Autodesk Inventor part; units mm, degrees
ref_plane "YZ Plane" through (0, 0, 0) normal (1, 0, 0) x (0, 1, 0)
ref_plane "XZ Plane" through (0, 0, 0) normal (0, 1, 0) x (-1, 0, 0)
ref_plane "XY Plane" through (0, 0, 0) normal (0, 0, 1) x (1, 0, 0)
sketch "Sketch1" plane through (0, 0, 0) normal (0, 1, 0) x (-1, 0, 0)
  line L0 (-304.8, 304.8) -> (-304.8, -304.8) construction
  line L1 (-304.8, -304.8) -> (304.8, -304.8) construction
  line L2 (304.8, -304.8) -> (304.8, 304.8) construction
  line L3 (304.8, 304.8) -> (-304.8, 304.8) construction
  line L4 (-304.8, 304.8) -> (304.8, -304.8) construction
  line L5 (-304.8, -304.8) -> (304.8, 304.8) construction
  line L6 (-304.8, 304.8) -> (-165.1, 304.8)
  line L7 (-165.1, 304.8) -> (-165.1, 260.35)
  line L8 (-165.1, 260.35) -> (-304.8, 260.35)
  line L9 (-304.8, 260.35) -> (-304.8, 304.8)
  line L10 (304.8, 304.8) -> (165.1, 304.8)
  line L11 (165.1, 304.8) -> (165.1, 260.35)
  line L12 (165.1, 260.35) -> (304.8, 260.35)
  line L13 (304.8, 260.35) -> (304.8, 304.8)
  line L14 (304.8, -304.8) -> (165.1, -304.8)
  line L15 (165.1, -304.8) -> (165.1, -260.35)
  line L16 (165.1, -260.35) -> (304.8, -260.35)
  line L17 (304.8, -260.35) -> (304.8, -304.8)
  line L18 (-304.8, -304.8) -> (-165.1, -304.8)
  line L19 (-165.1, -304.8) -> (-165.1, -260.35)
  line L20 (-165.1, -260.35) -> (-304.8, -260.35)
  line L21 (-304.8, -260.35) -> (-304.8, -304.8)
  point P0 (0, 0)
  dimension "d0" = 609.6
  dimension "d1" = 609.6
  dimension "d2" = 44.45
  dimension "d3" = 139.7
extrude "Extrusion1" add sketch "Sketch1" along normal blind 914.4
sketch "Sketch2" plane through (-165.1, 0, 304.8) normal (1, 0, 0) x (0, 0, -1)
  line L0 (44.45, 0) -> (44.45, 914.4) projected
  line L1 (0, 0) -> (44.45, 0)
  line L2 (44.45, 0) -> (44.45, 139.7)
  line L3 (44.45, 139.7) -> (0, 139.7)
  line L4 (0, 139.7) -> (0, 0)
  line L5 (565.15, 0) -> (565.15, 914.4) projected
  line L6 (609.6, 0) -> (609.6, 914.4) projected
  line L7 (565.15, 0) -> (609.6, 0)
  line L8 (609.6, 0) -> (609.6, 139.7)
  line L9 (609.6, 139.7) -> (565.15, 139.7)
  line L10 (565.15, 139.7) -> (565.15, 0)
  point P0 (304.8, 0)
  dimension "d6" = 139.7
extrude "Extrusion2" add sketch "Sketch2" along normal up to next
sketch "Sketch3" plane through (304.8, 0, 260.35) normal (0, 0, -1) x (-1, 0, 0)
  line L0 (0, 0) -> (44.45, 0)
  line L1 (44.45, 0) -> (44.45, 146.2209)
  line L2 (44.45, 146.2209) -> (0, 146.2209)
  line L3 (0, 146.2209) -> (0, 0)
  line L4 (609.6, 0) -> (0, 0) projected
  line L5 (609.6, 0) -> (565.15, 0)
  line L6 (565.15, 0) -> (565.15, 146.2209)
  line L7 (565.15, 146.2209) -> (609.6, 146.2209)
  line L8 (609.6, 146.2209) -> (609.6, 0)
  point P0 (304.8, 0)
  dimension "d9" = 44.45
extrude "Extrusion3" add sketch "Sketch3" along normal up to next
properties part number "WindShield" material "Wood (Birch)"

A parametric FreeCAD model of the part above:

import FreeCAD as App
import Part
import Sketcher
from FreeCAD import Vector
Q = App.Units.Quantity

doc = App.newDocument("Part")
body = doc.addObject("PartDesign::Body", "Body")
body.AllowCompound = True

# Sketch on XZ plane
sketch1 = doc.addObject("Sketcher::SketchObject", "Sketch")
body.addObject(sketch1)
sketch1.AttachmentSupport = (doc.XZ_Plane, [""])
sketch1.MapMode = "FlatFace"
sketch1.addGeometry([
    Part.LineSegment(Vector(165, 305, 0), Vector(305, 305, 0)),  # 0
    Part.LineSegment(Vector(305, 305, 0), Vector(305, 260, 0)),  # 1
    Part.LineSegment(Vector(305, 260, 0), Vector(165, 260, 0)),  # 2
    Part.LineSegment(Vector(165, 260, 0), Vector(165, 305, 0)),  # 3
    Part.LineSegment(Vector(-305, 260, 0), Vector(-305, 305, 0)),  # 4
    Part.LineSegment(Vector(-305, 305, 0), Vector(-165, 305, 0)),  # 5
    Part.LineSegment(Vector(-165, 305, 0), Vector(-165, 260, 0)),  # 6
    Part.LineSegment(Vector(-165, 260, 0), Vector(-305, 260, 0)),  # 7
    Part.LineSegment(Vector(-165, -305, 0), Vector(-305, -305, 0)),  # 8
    Part.LineSegment(Vector(-305, -305, 0), Vector(-305, -260, 0)),  # 9
    Part.LineSegment(Vector(-305, -260, 0), Vector(-165, -260, 0)),  # 10
    Part.LineSegment(Vector(-165, -260, 0), Vector(-165, -305, 0)),  # 11
    Part.LineSegment(Vector(305, -260, 0), Vector(305, -305, 0)),  # 12
    Part.LineSegment(Vector(305, -305, 0), Vector(165, -305, 0)),  # 13
    Part.LineSegment(Vector(165, -305, 0), Vector(165, -260, 0)),  # 14
    Part.LineSegment(Vector(165, -260, 0), Vector(305, -260, 0)),  # 15
], False)
sketch1.addConstraint([
    Sketcher.Constraint("Coincident", 0, 2, 1, 1),
    Sketcher.Constraint("Coincident", 1, 2, 2, 1),
    Sketcher.Constraint("Coincident", 2, 2, 3, 1),
    Sketcher.Constraint("Coincident", 3, 2, 0, 1),
    Sketcher.Constraint("Coincident", 4, 2, 5, 1),
    Sketcher.Constraint("Coincident", 5, 2, 6, 1),
    Sketcher.Constraint("Coincident", 6, 2, 7, 1),
    Sketcher.Constraint("Coincident", 7, 2, 4, 1),
    Sketcher.Constraint("Coincident", 8, 2, 9, 1),
    Sketcher.Constraint("Coincident", 9, 2, 10, 1),
    Sketcher.Constraint("Coincident", 10, 2, 11, 1),
    Sketcher.Constraint("Coincident", 11, 2, 8, 1),
    Sketcher.Constraint("Coincident", 12, 2, 13, 1),
    Sketcher.Constraint("Coincident", 13, 2, 14, 1),
    Sketcher.Constraint("Coincident", 14, 2, 15, 1),
    Sketcher.Constraint("Coincident", 15, 2, 12, 1),
    Sketcher.Constraint("Horizontal", 0),
    Sketcher.Constraint("Vertical", 1),
    Sketcher.Constraint("Horizontal", 2),
    Sketcher.Constraint("Vertical", 3),
    Sketcher.Constraint("Vertical", 4),
    Sketcher.Constraint("Horizontal", 5),
    Sketcher.Constraint("Vertical", 6),
    Sketcher.Constraint("Horizontal", 7),
    Sketcher.Constraint("Horizontal", 8),
    Sketcher.Constraint("Vertical", 9),
    Sketcher.Constraint("Horizontal", 10),
    Sketcher.Constraint("Vertical", 11),
    Sketcher.Constraint("Vertical", 12),
    Sketcher.Constraint("Horizontal", 13),
    Sketcher.Constraint("Vertical", 14),
    Sketcher.Constraint("Horizontal", 15),
    Sketcher.Constraint("Symmetric", 0, 2, 8, 2, -1, 1),
    Sketcher.Constraint("Symmetric", 2, 2, 10, 2, -1, 1),
    Sketcher.Constraint("Symmetric", 4, 2, 12, 2, -1, 1),
    Sketcher.Constraint("Symmetric", 6, 2, 14, 2, -1, 1),
    Sketcher.Constraint("Symmetric", 0, 2, 4, 2, -2),
    Sketcher.Constraint("Symmetric", 2, 2, 6, 2, -2),
    Sketcher.Constraint("DistanceX", 0, 1, 0, 2, Q("5.5 in")),
    Sketcher.Constraint("DistanceX", 4, 2, 0, 2, Q("24 in")),
    Sketcher.Constraint("DistanceY", 8, 2, 4, 2, Q("24 in")),
    Sketcher.Constraint("DistanceY", 1, 2, 1, 1, Q("1.75 in")),
])
pad1 = doc.addObject("PartDesign::Pad", "Pad")
body.addObject(pad1)
pad1.Profile = sketch1
pad1.Length = Q("36 in")
pad1.Reversed = True

# Sketch on YZ plane
sketch2 = doc.addObject("Sketcher::SketchObject", "Sketch001")
body.addObject(sketch2)
sketch2.AttachmentSupport = (doc.YZ_Plane, [""])
sketch2.MapMode = "FlatFace"
sketch2.AttachmentOffset = App.Placement(Vector(0, 0, -6.5 * 25.4), App.Rotation())
sketch2.addGeometry([
    Part.LineSegment(Vector(0, 305, 0), Vector(0, 260, 0)),  # 0
    Part.LineSegment(Vector(0, 260, 0), Vector(140, 260, 0)),  # 1
    Part.LineSegment(Vector(140, 260, 0), Vector(140, 305, 0)),  # 2
    Part.LineSegment(Vector(140, 305, 0), Vector(0, 305, 0)),  # 3
    Part.LineSegment(Vector(140, -260, 0), Vector(0, -260, 0)),  # 4
    Part.LineSegment(Vector(0, -260, 0), Vector(0, -305, 0)),  # 5
    Part.LineSegment(Vector(0, -305, 0), Vector(140, -305, 0)),  # 6
    Part.LineSegment(Vector(140, -305, 0), Vector(140, -260, 0)),  # 7
], False)
sketch2.addConstraint([
    Sketcher.Constraint("Coincident", 0, 2, 1, 1),
    Sketcher.Constraint("Coincident", 1, 2, 2, 1),
    Sketcher.Constraint("Coincident", 2, 2, 3, 1),
    Sketcher.Constraint("Coincident", 3, 2, 0, 1),
    Sketcher.Constraint("Coincident", 4, 2, 5, 1),
    Sketcher.Constraint("Coincident", 5, 2, 6, 1),
    Sketcher.Constraint("Coincident", 6, 2, 7, 1),
    Sketcher.Constraint("Coincident", 7, 2, 4, 1),
    Sketcher.Constraint("Vertical", 0),
    Sketcher.Constraint("Horizontal", 1),
    Sketcher.Constraint("Vertical", 2),
    Sketcher.Constraint("Horizontal", 3),
    Sketcher.Constraint("Horizontal", 4),
    Sketcher.Constraint("Vertical", 5),
    Sketcher.Constraint("Horizontal", 6),
    Sketcher.Constraint("Vertical", 7),
    Sketcher.Constraint("Symmetric", 0, 2, 4, 2, -1, 1),
    Sketcher.Constraint("Symmetric", 3, 2, 5, 2, -1),
    Sketcher.Constraint("Vertical", 2, 2, 6, 2),
    Sketcher.Constraint("DistanceX", 1, 1, 1, 2, Q("5.5 in")),
    Sketcher.Constraint("DistanceY", -1, 1, 2, 2, Q("12 in")),
    Sketcher.Constraint("DistanceY", 0, 2, 0, 1, Q("1.75 in")),
])
pad2 = doc.addObject("PartDesign::Pad", "Pad001")
body.addObject(pad2)
pad2.Profile = sketch2
pad2.Length = Q("13 in")

# Sketch on XY plane
sketch3 = doc.addObject("Sketcher::SketchObject", "Sketch002")
body.addObject(sketch3)
sketch3.AttachmentSupport = (doc.XY_Plane, [""])
sketch3.MapMode = "FlatFace"
sketch3.AttachmentOffset = App.Placement(Vector(0, 0, 10.25 * 25.4), App.Rotation())
sketch3.addGeometry([
    Part.LineSegment(Vector(305, 146, 0), Vector(305, 0, 0)),  # 0
    Part.LineSegment(Vector(305, 0, 0), Vector(260, 0, 0)),  # 1
    Part.LineSegment(Vector(260, 0, 0), Vector(260, 146, 0)),  # 2
    Part.LineSegment(Vector(260, 146, 0), Vector(305, 146, 0)),  # 3
    Part.LineSegment(Vector(-260, 146, 0), Vector(-260, 0, 0)),  # 4
    Part.LineSegment(Vector(-260, 0, 0), Vector(-305, 0, 0)),  # 5
    Part.LineSegment(Vector(-305, 0, 0), Vector(-305, 146, 0)),  # 6
    Part.LineSegment(Vector(-305, 146, 0), Vector(-260, 146, 0)),  # 7
], False)
sketch3.addConstraint([
    Sketcher.Constraint("Coincident", 0, 2, 1, 1),
    Sketcher.Constraint("Coincident", 1, 2, 2, 1),
    Sketcher.Constraint("Coincident", 2, 2, 3, 1),
    Sketcher.Constraint("Coincident", 3, 2, 0, 1),
    Sketcher.Constraint("Coincident", 4, 2, 5, 1),
    Sketcher.Constraint("Coincident", 5, 2, 6, 1),
    Sketcher.Constraint("Coincident", 6, 2, 7, 1),
    Sketcher.Constraint("Coincident", 7, 2, 4, 1),
    Sketcher.Constraint("Vertical", 0),
    Sketcher.Constraint("Horizontal", 1),
    Sketcher.Constraint("Vertical", 2),
    Sketcher.Constraint("Horizontal", 3),
    Sketcher.Constraint("Vertical", 4),
    Sketcher.Constraint("Horizontal", 5),
    Sketcher.Constraint("Vertical", 6),
    Sketcher.Constraint("Horizontal", 7),
    Sketcher.Constraint("Symmetric", 1, 2, 4, 2, -1, 1),
    Sketcher.Constraint("Symmetric", 0, 2, 5, 2, -2),
    Sketcher.Constraint("Horizontal", 3, 2, 6, 2),
    Sketcher.Constraint("DistanceX", 1, 2, 1, 1, Q("1.75 in")),
    Sketcher.Constraint("DistanceX", -1, 1, 0, 2, Q("12 in")),
    Sketcher.Constraint("DistanceY", 0, 2, 0, 1, Q("146.221 mm")),
])
pad3 = doc.addObject("PartDesign::Pad", "Pad002")
body.addObject(pad3)
pad3.Profile = sketch3
pad3.Type = "UpToFirst"
pad3.Reversed = True

doc.recompute()
